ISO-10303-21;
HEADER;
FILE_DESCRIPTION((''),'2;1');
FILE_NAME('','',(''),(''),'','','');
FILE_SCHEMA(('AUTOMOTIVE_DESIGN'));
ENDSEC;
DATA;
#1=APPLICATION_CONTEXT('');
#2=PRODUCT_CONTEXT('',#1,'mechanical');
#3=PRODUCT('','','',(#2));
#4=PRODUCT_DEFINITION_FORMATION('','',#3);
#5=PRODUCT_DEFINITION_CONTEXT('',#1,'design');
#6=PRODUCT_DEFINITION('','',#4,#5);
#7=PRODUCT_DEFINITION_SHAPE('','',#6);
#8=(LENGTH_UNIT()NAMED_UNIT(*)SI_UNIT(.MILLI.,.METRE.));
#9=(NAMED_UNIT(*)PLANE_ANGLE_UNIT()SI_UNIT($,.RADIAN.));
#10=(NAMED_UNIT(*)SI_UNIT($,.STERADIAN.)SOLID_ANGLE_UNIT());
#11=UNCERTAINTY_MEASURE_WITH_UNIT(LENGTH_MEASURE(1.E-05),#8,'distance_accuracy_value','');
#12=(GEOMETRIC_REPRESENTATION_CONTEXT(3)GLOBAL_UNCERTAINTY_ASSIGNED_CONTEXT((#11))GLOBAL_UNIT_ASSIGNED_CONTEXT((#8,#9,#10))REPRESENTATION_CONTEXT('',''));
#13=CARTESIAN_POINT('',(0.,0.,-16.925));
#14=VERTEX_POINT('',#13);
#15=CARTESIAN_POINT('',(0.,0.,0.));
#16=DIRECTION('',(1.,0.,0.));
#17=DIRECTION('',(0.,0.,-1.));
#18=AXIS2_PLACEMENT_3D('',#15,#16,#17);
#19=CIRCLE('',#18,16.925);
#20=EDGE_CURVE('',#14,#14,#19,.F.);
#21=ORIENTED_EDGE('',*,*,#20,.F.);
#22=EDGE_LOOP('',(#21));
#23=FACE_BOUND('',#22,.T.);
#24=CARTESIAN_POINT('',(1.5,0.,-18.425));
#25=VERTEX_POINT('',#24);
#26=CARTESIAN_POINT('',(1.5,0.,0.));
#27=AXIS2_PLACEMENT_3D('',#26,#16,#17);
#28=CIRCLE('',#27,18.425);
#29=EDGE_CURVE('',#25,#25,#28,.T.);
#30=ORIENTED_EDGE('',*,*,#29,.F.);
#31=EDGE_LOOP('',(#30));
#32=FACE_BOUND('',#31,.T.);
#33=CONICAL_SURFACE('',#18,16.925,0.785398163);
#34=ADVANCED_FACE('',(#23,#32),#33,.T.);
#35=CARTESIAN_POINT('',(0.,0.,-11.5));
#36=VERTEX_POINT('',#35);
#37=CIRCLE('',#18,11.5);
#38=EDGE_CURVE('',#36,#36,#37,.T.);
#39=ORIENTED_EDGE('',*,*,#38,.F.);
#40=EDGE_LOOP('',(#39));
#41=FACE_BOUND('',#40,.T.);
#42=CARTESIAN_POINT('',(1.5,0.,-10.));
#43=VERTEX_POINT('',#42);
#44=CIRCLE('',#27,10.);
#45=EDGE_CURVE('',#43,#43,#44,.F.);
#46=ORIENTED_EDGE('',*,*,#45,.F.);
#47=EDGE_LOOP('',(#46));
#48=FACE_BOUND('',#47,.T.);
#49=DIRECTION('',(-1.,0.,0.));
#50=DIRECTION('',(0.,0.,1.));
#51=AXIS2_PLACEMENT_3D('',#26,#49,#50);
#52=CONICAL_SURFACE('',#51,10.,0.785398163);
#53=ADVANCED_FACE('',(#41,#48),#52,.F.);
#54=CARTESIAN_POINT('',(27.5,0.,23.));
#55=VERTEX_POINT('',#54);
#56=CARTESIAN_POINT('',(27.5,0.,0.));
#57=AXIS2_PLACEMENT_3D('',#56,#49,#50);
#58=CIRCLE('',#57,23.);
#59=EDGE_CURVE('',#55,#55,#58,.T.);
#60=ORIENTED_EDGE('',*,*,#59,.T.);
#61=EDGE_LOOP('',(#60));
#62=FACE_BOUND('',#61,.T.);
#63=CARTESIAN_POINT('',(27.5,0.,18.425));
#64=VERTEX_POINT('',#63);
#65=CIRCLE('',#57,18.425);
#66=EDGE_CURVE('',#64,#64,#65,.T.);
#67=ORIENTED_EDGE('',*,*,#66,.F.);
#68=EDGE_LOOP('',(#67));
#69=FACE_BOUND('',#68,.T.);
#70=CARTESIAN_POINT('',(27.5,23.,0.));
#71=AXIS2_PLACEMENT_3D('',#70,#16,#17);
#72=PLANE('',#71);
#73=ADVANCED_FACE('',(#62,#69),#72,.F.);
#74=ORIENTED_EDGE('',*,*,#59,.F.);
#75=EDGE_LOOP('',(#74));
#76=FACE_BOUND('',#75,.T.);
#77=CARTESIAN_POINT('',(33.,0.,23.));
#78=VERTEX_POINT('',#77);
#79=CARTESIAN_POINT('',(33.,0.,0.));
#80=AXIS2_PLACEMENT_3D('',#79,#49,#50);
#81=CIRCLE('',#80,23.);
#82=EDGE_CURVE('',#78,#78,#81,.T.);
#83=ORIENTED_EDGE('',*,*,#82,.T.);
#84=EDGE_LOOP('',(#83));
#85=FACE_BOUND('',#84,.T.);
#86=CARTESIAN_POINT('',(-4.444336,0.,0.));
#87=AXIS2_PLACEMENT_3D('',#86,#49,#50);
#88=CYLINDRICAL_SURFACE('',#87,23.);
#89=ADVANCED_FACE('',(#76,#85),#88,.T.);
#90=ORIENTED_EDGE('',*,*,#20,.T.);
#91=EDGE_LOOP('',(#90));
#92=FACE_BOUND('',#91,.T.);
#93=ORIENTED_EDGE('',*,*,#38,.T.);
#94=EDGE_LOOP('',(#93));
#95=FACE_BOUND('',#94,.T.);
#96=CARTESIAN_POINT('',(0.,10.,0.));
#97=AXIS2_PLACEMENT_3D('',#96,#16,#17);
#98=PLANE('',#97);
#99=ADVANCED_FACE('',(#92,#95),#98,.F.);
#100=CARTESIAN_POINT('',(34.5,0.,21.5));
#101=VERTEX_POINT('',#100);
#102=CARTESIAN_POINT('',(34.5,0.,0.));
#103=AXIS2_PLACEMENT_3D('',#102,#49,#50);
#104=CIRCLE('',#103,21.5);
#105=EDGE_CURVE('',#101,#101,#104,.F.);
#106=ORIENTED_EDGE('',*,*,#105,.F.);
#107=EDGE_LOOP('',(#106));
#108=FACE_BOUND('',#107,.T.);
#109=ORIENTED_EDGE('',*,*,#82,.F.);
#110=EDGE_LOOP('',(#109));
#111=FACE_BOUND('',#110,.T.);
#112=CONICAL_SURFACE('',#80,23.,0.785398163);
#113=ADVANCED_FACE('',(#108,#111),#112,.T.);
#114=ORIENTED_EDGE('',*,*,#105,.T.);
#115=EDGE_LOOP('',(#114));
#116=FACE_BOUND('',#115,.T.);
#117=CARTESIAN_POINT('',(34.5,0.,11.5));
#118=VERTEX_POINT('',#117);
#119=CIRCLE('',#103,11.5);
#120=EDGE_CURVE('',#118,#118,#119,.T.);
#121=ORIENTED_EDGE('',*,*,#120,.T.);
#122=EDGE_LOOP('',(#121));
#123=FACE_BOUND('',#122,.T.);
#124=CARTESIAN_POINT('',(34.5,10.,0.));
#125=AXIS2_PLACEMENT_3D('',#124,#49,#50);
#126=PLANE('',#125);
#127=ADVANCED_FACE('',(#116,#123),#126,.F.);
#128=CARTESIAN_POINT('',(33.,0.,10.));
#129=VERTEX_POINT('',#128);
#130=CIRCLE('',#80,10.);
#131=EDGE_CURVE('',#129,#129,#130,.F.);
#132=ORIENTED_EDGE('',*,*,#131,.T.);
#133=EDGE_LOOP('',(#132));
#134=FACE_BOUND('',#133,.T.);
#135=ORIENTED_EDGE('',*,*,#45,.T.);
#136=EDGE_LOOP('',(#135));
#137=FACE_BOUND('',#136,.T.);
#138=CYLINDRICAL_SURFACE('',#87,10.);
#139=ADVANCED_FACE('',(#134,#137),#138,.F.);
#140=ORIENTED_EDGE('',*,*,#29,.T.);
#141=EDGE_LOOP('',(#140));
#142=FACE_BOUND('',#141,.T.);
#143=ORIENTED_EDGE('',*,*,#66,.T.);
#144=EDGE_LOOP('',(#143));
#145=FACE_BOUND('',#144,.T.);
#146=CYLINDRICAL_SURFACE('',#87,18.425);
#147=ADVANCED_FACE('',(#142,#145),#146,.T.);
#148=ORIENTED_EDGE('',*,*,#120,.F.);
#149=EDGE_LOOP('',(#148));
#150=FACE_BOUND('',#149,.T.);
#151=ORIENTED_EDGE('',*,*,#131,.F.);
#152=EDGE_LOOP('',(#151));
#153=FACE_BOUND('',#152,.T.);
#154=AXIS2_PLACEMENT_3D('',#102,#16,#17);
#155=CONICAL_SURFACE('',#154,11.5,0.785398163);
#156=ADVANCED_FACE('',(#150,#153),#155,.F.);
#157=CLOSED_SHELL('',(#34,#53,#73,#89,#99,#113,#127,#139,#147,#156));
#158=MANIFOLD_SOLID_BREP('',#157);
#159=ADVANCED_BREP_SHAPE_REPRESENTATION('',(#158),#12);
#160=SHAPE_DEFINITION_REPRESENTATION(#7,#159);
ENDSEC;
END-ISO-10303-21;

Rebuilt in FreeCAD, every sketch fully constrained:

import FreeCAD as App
import Part
import Sketcher

V = App.Vector
Q = App.Units.Quantity


def edges_at(feature, points):
    """Names of the edges that pass closest to the given points."""
    edges = feature.Shape.Edges
    near = lambda p: min(range(len(edges)), key=lambda i: edges[i].distToShape(Part.Vertex(*p))[0])
    return sorted({f"Edge{near(p) + 1}" for p in points})


def add_polygon(sketch, points):
    """Adds a closed chain of lines whose ends are joined by coincident constraints."""
    first, n = sketch.GeometryCount, len(points)
    for a, b in zip(points, points[1:] + points[:1]):
        sketch.addGeometry(Part.LineSegment(App.Vector(*a, 0), App.Vector(*b, 0)), False)
    for i in range(n):
        sketch.addConstraint(Sketcher.Constraint("Coincident", first + i, 2, first + (i + 1) % n, 1))

doc = App.newDocument("Part")
body = doc.addObject("PartDesign::Body", "Body")

sketch1 = body.newObject("Sketcher::SketchObject", "Sketch")
sketch1.AttachmentSupport = (doc.getObject("XY_Plane"), [""])
sketch1.MapMode = "FlatFace"
add_polygon(sketch1, [(0, 18.425), (0, 10), (34.5, 10), (34.5, 23), (27.5, 23), (27.5, 18.425)])
sketch1.addConstraint([
    Sketcher.Constraint("Vertical", 0),
    Sketcher.Constraint("Horizontal", 1),
    Sketcher.Constraint("Vertical", 2),
    Sketcher.Constraint("Horizontal", 3),
    Sketcher.Constraint("Vertical", 4),
    Sketcher.Constraint("Horizontal", 5),
    Sketcher.Constraint("PointOnObject", 0, 2, -2),
    Sketcher.Constraint("DistanceX", 3, 2, 3, 1, Q("7 mm")),
    Sketcher.Constraint("DistanceY", 2, 1, 2, 2, Q("13 mm")),
    Sketcher.Constraint("DistanceX", 1, 1, 1, 2, Q("34.5 mm")),
    Sketcher.Constraint("DistanceY", -1, 1, 0, 2, Q("10 mm")),
    Sketcher.Constraint("DistanceY", 0, 2, 0, 1, Q("8.425 mm")),
])
revolution = body.newObject("PartDesign::Revolution", "Revolution")
revolution.Profile = sketch1
revolution.ReferenceAxis = (sketch1, ["H_Axis"])
revolution.Angle = 360
doc.recompute()

chamfer = body.newObject("PartDesign::Chamfer", "Chamfer")
chamfer.Base = (revolution, edges_at(revolution, [
    (0, 0, -18.425),
    (0, 0, -10),
    (34.5, 0, -10),
    (34.5, 0, -23),
]))
chamfer.Size = 1.5

doc.recompute()
